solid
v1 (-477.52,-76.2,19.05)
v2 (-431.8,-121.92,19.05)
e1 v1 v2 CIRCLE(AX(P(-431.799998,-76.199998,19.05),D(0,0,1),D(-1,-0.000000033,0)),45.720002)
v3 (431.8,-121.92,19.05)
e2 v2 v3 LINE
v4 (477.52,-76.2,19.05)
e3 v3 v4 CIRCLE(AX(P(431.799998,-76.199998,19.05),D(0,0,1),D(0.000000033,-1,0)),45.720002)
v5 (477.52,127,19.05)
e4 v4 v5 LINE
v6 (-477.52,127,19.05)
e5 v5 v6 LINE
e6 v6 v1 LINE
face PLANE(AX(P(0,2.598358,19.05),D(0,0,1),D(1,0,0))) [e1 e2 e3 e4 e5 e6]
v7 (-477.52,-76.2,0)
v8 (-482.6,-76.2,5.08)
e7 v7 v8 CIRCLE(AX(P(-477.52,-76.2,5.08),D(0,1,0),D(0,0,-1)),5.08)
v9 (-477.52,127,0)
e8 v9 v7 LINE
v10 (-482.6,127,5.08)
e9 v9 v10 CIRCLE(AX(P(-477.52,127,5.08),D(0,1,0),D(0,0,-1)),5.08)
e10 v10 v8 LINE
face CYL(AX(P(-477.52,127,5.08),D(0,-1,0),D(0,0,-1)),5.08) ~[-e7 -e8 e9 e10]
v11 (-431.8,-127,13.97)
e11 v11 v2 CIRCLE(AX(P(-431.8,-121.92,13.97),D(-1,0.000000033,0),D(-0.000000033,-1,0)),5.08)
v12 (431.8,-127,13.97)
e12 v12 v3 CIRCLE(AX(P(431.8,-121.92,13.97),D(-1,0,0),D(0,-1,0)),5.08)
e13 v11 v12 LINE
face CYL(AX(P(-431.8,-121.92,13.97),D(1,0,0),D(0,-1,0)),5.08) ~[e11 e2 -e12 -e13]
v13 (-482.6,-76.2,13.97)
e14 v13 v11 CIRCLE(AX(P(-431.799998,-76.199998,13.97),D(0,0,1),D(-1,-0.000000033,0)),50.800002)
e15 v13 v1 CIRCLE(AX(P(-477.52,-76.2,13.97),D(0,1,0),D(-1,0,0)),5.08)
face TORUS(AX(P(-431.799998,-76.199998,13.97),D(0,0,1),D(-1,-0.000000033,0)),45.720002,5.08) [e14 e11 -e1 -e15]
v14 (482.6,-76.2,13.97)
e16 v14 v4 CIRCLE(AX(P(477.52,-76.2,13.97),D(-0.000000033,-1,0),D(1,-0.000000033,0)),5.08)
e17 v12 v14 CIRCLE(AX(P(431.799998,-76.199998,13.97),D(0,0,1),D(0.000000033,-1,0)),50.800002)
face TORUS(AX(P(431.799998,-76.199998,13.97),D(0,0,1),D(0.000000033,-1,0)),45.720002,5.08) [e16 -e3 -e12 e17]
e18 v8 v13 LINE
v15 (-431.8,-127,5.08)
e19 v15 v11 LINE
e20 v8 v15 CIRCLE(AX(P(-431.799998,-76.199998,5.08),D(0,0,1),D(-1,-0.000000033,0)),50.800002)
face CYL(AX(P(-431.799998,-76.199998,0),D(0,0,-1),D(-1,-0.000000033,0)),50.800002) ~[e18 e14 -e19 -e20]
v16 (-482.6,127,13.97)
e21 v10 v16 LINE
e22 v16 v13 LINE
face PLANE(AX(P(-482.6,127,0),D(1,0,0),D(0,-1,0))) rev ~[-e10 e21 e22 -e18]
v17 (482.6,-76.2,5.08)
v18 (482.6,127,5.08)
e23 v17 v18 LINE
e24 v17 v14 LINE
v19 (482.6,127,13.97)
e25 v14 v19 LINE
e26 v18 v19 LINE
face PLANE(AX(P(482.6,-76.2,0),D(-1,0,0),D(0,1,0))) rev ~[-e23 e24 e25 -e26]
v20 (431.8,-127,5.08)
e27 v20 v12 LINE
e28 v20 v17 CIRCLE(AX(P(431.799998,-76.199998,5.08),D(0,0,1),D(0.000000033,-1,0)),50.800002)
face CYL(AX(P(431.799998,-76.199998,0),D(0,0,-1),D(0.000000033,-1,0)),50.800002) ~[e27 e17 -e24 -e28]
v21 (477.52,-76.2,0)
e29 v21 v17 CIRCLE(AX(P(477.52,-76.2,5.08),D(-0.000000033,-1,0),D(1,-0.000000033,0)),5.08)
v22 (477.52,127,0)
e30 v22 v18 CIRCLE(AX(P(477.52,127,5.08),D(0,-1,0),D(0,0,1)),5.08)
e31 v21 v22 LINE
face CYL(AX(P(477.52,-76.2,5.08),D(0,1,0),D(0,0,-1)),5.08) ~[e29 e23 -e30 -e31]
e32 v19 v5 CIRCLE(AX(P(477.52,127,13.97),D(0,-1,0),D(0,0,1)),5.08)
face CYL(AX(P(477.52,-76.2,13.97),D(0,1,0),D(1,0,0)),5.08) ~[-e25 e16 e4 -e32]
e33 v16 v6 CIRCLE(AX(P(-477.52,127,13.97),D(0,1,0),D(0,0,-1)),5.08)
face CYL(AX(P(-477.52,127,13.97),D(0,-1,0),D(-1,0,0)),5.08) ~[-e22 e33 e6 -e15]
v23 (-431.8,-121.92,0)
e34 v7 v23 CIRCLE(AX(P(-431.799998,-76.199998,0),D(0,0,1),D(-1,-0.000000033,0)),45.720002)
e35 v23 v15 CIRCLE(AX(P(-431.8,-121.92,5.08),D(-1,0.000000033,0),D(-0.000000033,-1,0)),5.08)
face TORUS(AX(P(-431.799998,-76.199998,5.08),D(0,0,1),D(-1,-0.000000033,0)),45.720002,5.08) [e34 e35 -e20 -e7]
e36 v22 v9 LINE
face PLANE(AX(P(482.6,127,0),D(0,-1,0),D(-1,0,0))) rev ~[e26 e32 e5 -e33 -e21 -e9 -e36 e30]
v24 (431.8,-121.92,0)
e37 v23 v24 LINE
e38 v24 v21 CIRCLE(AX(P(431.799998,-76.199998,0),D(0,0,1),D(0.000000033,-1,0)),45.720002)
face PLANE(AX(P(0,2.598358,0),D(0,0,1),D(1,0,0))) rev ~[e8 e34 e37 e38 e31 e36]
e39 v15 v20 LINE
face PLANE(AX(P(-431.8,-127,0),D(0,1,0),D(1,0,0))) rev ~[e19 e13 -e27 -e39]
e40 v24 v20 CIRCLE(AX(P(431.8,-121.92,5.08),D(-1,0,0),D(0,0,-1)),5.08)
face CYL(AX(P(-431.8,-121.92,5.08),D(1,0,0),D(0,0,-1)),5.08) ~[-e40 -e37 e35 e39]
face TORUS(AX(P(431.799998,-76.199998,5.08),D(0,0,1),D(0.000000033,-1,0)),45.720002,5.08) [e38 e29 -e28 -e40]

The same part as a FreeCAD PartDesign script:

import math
import FreeCAD as App
import Part
import Sketcher
from FreeCAD import Vector
Q = App.Units.Quantity


def edges_at(feature, points):
    """Names of the edges that pass closest to the given points."""
    edges = feature.Shape.Edges
    near = lambda p: min(range(len(edges)), key=lambda i: edges[i].distToShape(Part.Vertex(*p))[0])
    return sorted({f"Edge{near(p) + 1}" for p in points})

doc = App.newDocument("Part")
body = doc.addObject("PartDesign::Body", "Body")

# Sketch on XY plane
sketch1 = doc.addObject("Sketcher::SketchObject", "Sketch")
body.addObject(sketch1)
sketch1.AttachmentSupport = (doc.XY_Plane, [""])
sketch1.MapMode = "FlatFace"
sketch1.addGeometry([
    Part.LineSegment(Vector(483, 127, 0), Vector(-483, 127, 0)),  # 0
    Part.LineSegment(Vector(-483, 127, 0), Vector(-483, -76, 0)),  # 1
    Part.ArcOfCircle(Part.Circle(Vector(-432, -76, 0), Vector(0, 0, 1), 51), math.radians(-180), math.radians(-90)),  # 2
    Part.LineSegment(Vector(-432, -127, 0), Vector(432, -127, 0)),  # 3
    Part.ArcOfCircle(Part.Circle(Vector(432, -76, 0), Vector(0, 0, 1), 51), math.radians(-90), math.radians(0)),  # 4
    Part.LineSegment(Vector(483, -76, 0), Vector(483, 127, 0)),  # 5
], False)
sketch1.addConstraint([
    Sketcher.Constraint("Coincident", 0, 2, 1, 1),
    Sketcher.Constraint("Tangent", 1, 2, 2, 1),
    Sketcher.Constraint("Tangent", 2, 2, 3, 1),
    Sketcher.Constraint("Tangent", 3, 2, 4, 1),
    Sketcher.Constraint("Tangent", 4, 2, 5, 1),
    Sketcher.Constraint("Coincident", 5, 2, 0, 1),
    Sketcher.Constraint("Horizontal", 0),
    Sketcher.Constraint("Vertical", 1),
    Sketcher.Constraint("Horizontal", 3),
    Sketcher.Constraint("Vertical", 5),
    Sketcher.Constraint("Equal", 2, 4),
    Sketcher.Constraint("Radius", 2, Q("2.0000001 in")),
    Sketcher.Constraint("DistanceX", 0, 2, 0, 1, Q("38 in")),
    Sketcher.Constraint("DistanceY", 1, 2, 1, 1, Q("8 in")),
    Sketcher.Constraint("DistanceX", 2, 3, -1, 1, Q("16.9999999 in")),
    Sketcher.Constraint("DistanceY", 2, 3, -1, 1, Q("2.9999999 in")),
])
pad1 = doc.addObject("PartDesign::Pad", "Pad")
body.addObject(pad1)
pad1.Profile = sketch1
pad1.Length = Q("0.75 in")
doc.recompute()

fillet = doc.addObject("PartDesign::Fillet", "Fillet")
body.addObject(fillet)
fillet.Base = (pad1, edges_at(pad1, [(0, -127, 19.05)]))
fillet.Radius = Q("0.2 in")
doc.recompute()

fillet2 = doc.addObject("PartDesign::Fillet", "Fillet001")
body.addObject(fillet2)
fillet2.Base = (fillet, edges_at(fillet, [(0, -127, 0)]))
fillet2.Radius = Q("0.2 in")

doc.recompute()
